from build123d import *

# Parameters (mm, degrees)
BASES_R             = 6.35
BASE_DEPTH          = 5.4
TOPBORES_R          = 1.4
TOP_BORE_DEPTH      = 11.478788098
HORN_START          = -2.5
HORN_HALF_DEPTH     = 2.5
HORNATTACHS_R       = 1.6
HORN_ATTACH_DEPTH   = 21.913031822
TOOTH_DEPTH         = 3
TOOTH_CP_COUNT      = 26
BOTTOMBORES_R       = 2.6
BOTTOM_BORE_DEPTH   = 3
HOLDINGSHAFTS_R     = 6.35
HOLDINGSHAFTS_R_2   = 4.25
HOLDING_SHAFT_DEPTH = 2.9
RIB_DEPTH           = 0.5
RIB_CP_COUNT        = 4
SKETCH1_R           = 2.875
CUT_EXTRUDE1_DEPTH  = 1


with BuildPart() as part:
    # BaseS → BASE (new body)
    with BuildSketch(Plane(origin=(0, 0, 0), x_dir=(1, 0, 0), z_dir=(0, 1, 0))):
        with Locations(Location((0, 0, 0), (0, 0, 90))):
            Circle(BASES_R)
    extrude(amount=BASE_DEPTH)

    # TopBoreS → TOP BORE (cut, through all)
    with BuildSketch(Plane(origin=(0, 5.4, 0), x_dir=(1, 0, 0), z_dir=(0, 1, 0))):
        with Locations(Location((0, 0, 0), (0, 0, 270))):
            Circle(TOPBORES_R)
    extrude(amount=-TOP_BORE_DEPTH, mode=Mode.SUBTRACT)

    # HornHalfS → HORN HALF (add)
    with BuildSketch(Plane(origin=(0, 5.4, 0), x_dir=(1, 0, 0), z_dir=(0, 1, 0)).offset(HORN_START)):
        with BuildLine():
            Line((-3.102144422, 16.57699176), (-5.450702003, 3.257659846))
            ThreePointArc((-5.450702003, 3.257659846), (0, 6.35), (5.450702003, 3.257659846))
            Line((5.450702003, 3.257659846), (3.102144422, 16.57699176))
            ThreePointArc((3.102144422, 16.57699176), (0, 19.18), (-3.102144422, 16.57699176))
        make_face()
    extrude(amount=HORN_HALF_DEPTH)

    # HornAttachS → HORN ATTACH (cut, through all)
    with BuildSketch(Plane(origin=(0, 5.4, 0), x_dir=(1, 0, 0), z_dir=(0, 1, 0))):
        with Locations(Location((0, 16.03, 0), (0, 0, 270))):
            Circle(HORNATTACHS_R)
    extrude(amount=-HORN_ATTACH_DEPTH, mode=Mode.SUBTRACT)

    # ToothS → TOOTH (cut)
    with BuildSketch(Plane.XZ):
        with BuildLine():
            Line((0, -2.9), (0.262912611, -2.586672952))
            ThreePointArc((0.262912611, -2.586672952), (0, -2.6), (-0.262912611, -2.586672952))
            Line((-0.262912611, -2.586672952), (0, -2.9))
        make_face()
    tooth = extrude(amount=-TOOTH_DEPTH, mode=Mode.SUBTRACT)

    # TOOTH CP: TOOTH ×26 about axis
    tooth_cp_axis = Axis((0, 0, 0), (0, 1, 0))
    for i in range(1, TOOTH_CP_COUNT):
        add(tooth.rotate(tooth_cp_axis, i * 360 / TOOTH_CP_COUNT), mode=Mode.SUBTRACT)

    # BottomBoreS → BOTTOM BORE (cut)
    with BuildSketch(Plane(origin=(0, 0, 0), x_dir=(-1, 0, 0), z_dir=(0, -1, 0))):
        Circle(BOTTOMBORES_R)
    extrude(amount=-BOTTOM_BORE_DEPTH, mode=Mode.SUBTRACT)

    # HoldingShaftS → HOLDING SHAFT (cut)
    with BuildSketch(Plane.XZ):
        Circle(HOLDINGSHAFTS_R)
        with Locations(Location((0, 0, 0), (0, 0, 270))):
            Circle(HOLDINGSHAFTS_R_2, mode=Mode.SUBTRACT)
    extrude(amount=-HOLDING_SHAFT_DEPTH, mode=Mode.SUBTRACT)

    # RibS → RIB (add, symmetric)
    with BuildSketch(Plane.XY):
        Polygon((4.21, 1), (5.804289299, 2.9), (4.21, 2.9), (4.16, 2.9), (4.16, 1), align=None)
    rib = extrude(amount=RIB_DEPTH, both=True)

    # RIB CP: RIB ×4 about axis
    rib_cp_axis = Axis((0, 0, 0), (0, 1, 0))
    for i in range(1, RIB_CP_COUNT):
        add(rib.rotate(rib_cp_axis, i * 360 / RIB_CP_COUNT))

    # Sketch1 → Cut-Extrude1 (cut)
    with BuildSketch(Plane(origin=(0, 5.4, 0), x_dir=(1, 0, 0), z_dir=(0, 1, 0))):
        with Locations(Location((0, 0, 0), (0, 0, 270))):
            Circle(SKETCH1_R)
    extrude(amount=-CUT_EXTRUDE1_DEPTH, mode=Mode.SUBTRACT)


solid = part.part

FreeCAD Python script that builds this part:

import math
import FreeCAD as App
import Part
import Sketcher
Q = App.Units.Quantity


def add_polygon(sketch, points):
    """Adds a closed chain of lines whose ends are joined by coincident constraints."""
    first, n = sketch.GeometryCount, len(points)
    for a, b in zip(points, points[1:] + points[:1]):
        sketch.addGeometry(Part.LineSegment(App.Vector(*a, 0), App.Vector(*b, 0)), False)
    for i in range(n):
        sketch.addConstraint(Sketcher.Constraint("Coincident", first + i, 2, first + (i + 1) % n, 1))

doc = App.newDocument("Part")
params = doc.addObject("Spreadsheet::Sheet", "Params")
for row, (alias, value) in enumerate([
    ("sketch1_diameter", "12.7 mm"),
    ("pad1_length", "5.4 mm"),
    ("sketch2_diameter", "2.8 mm"),
    ("sketch3_radius", "6.35 mm"),
    ("sketch3_radius2", "3.15 mm"),
    ("pad2_length", "2.5 mm"),
    ("sketch4_diameter", "3.2 mm"),
    ("sketch5_radius", "2.6 mm"),
    ("pocket3_length", "3 mm"),
    ("sketch6_diameter", "5.2 mm"),
    ("pocket4_length", "3 mm"),
    ("sketch7_diameter", "12.7 mm"),
    ("sketch7_diameter2", "8.5 mm"),
    ("pocket5_length", "2.9 mm"),
    ("sketch8_height", "1.9 mm"),
    ("sketch8_width", "0.05 mm"),
    ("pad3_length", "1 mm"),
    ("sketch9_diameter", "5.75 mm"),
    ("pocket6_length", "1 mm"),
], start=1):
    params.set(f"A{row}", alias)
    params.set(f"B{row}", "=" + value)
    params.setAlias(f"B{row}", alias)

body = doc.addObject("PartDesign::Body", "Body")

sketch1 = body.newObject("Sketcher::SketchObject", "Sketch")
sketch1.AttachmentSupport = (doc.getObject("XZ_Plane"), [""])
sketch1.MapMode = "FlatFace"
sketch1.addGeometry(Part.Circle(App.Vector(0, 0, 0), App.Vector(0, 0, 1), 6), False)
sketch1.addConstraint(Sketcher.Constraint("Coincident", 0, 3, -1, 1))
sketch1.addConstraint(Sketcher.Constraint("Diameter", 0, Q("12.7 mm")))
sketch1.setExpression("Constraints[1]", "Params.sketch1_diameter")
pad1 = body.newObject("PartDesign::Pad", "Pad")
pad1.Profile = sketch1
pad1.setExpression("Length", "Params.pad1_length")
pad1.Reversed = True

sketch2 = body.newObject("Sketcher::SketchObject", "Sketch001")
sketch2.AttachmentSupport = (doc.getObject("XZ_Plane"), [""])
sketch2.MapMode = "FlatFace"
sketch2.AttachmentOffset = App.Placement(App.Vector(0, 0, -5.4), App.Rotation())
sketch2.addGeometry(Part.Circle(App.Vector(0, 0, 0), App.Vector(0, 0, 1), 1.4), False)
sketch2.addConstraint(Sketcher.Constraint("Coincident", 0, 3, -1, 1))
sketch2.addConstraint(Sketcher.Constraint("Diameter", 0, Q("2.8 mm")))
sketch2.setExpression("Constraints[1]", "Params.sketch2_diameter")
pocket1 = body.newObject("PartDesign::Pocket", "Pocket")
pocket1.Profile = sketch2
pocket1.Type = "ThroughAll"
pocket1.Reversed = True

sketch3 = body.newObject("Sketcher::SketchObject", "Sketch002")
sketch3.AttachmentSupport = (doc.getObject("XZ_Plane"), [""])
sketch3.MapMode = "FlatFace"
sketch3.AttachmentOffset = App.Placement(App.Vector(0, 0, -2.9), App.Rotation())
sketch3.addGeometry(Part.LineSegment(App.Vector(-3.1, -16.6, 0), App.Vector(-5.5, -3.3, 0)), False)
sketch3.addGeometry(Part.ArcOfCircle(Part.Circle(App.Vector(0, 0, 0), App.Vector(0, 0, 1), 6.3), math.radians(-149), math.radians(-31)), False)
sketch3.addGeometry(Part.LineSegment(App.Vector(5.5, -3.3, 0), App.Vector(3.1, -16.6, 0)), False)
sketch3.addGeometry(Part.ArcOfCircle(Part.Circle(App.Vector(0, -16, 0), App.Vector(0, 0, 1), 3.1), math.radians(-170), math.radians(-10)), False)
sketch3.addConstraint(Sketcher.Constraint("Coincident", 0, 2, 1, 1))
sketch3.addConstraint(Sketcher.Constraint("Coincident", 1, 2, 2, 1))
sketch3.addConstraint(Sketcher.Constraint("Tangent", 2, 2, 3, 2))
sketch3.addConstraint(Sketcher.Constraint("Tangent", 3, 1, 0, 1))
sketch3.addConstraint(Sketcher.Constraint("Coincident", 1, 3, -1, 1))
sketch3.addConstraint(Sketcher.Constraint("Symmetric", 2, 2, 3, 1, -2))
sketch3.addConstraint(Sketcher.Constraint("Angle", 0, Q("100 deg")))
sketch3.addConstraint(Sketcher.Constraint("Radius", 1, Q("6.35 mm")))
sketch3.addConstraint(Sketcher.Constraint("Radius", 3, Q("3.15 mm")))
sketch3.addConstraint(Sketcher.Constraint("DistanceY", 3, 3, -1, 1, Q("16.03 mm")))
sketch3.setExpression("Constraints[7]", "Params.sketch3_radius")
sketch3.setExpression("Constraints[8]", "Params.sketch3_radius2")
pad2 = body.newObject("PartDesign::Pad", "Pad001")
pad2.Profile = sketch3
pad2.setExpression("Length", "Params.pad2_length")
pad2.Reversed = True

sketch4 = body.newObject("Sketcher::SketchObject", "Sketch003")
sketch4.AttachmentSupport = (doc.getObject("XZ_Plane"), [""])
sketch4.MapMode = "FlatFace"
sketch4.AttachmentOffset = App.Placement(App.Vector(0, 0, -5.4), App.Rotation())
sketch4.addGeometry(Part.Circle(App.Vector(0, -16, 0), App.Vector(0, 0, 1), 1.6), False)
sketch4.addConstraint(Sketcher.Constraint("PointOnObject", 0, 3, -2))
sketch4.addConstraint(Sketcher.Constraint("Diameter", 0, Q("3.2 mm")))
sketch4.addConstraint(Sketcher.Constraint("DistanceY", 0, 3, -1, 1, Q("16.03 mm")))
sketch4.setExpression("Constraints[1]", "Params.sketch4_diameter")
pocket2 = body.newObject("PartDesign::Pocket", "Pocket001")
pocket2.Profile = sketch4
pocket2.Type = "ThroughAll"
pocket2.Reversed = True

sketch5 = body.newObject("Sketcher::SketchObject", "Sketch004")
sketch5.AttachmentSupport = (doc.getObject("XZ_Plane"), [""])
sketch5.MapMode = "FlatFace"
sketch5.addGeometry(Part.LineSegment(App.Vector(0, -2.9, 0), App.Vector(0.26, -2.59, 0)), False)
sketch5.addGeometry(Part.ArcOfCircle(Part.Circle(App.Vector(0, 0, 0), App.Vector(0, 0, 1), 2.6), math.radians(-95.8), math.radians(-84.2)), False)
sketch5.addGeometry(Part.LineSegment(App.Vector(-0.26, -2.59, 0), App.Vector(0, -2.9, 0)), False)
sketch5.addConstraint(Sketcher.Constraint("Coincident", 0, 2, 1, 2))
sketch5.addConstraint(Sketcher.Constraint("Coincident", 1, 1, 2, 1))
sketch5.addConstraint(Sketcher.Constraint("Coincident", 2, 2, 0, 1))
sketch5.addConstraint(Sketcher.Constraint("Coincident", 1, 3, -1, 1))
sketch5.addConstraint(Sketcher.Constraint("PointOnObject", 2, 2, -2))
sketch5.addConstraint(Sketcher.Constraint("Horizontal", 0, 2, 1, 1))
sketch5.addConstraint(Sketcher.Constraint("Radius", 1, Q("2.6 mm")))
sketch5.addConstraint(Sketcher.Constraint("Angle", 0, Q("50 deg")))
sketch5.addConstraint(Sketcher.Constraint("DistanceY", 2, 2, -1, 1, Q("2.9 mm")))
sketch5.setExpression("Constraints[6]", "Params.sketch5_radius")
pocket3 = body.newObject("PartDesign::Pocket", "Pocket002")
pocket3.Profile = sketch5
pocket3.setExpression("Length", "Params.pocket3_length")
doc.recompute()

polarpattern = body.newObject("PartDesign::PolarPattern", "PolarPattern")
polarpattern.Originals = [pocket3]
polarpattern.Axis = (doc.getObject("Y_Axis"), [""])
polarpattern.Angle = 360
polarpattern.Occurrences = 26
body.Tip = polarpattern

sketch6 = body.newObject("Sketcher::SketchObject", "Sketch005")
sketch6.AttachmentSupport = (doc.getObject("XZ_Plane"), [""])
sketch6.MapMode = "FlatFace"
sketch6.addGeometry(Part.Circle(App.Vector(0, 0, 0), App.Vector(0, 0, 1), 2.6), False)
sketch6.addConstraint(Sketcher.Constraint("Coincident", 0, 3, -1, 1))
sketch6.addConstraint(Sketcher.Constraint("Diameter", 0, Q("5.2 mm")))
sketch6.setExpression("Constraints[1]", "Params.sketch6_diameter")
pocket4 = body.newObject("PartDesign::Pocket", "Pocket003")
pocket4.Profile = sketch6
pocket4.setExpression("Length", "Params.pocket4_length")

sketch7 = body.newObject("Sketcher::SketchObject", "Sketch006")
sketch7.AttachmentSupport = (doc.getObject("XZ_Plane"), [""])
sketch7.MapMode = "FlatFace"
sketch7.addGeometry(Part.Circle(App.Vector(0, 0, 0), App.Vector(0, 0, 1), 6.3), False)
sketch7.addGeometry(Part.Circle(App.Vector(0, 0, 0), App.Vector(0, 0, 1), 4.2), False)
sketch7.addConstraint(Sketcher.Constraint("Coincident", 0, 3, -1, 1))
sketch7.addConstraint(Sketcher.Constraint("Coincident", 1, 3, -1, 1))
sketch7.addConstraint(Sketcher.Constraint("Diameter", 0, Q("12.7 mm")))
sketch7.addConstraint(Sketcher.Constraint("Diameter", 1, Q("8.5 mm")))
sketch7.setExpression("Constraints[2]", "Params.sketch7_diameter")
sketch7.setExpression("Constraints[3]", "Params.sketch7_diameter2")
pocket5 = body.newObject("PartDesign::Pocket", "Pocket004")
pocket5.Profile = sketch7
pocket5.setExpression("Length", "Params.pocket5_length")

sketch8 = body.newObject("Sketcher::SketchObject", "Sketch007")
sketch8.AttachmentSupport = (doc.getObject("XY_Plane"), [""])
sketch8.MapMode = "FlatFace"
add_polygon(sketch8, [(4.21, 1), (5.804, 2.9), (4.16, 2.9), (4.16, 1)])
sketch8.addConstraint(Sketcher.Constraint("Horizontal", 1))
sketch8.addConstraint(Sketcher.Constraint("Vertical", 2))
sketch8.addConstraint(Sketcher.Constraint("Horizontal", 3))
sketch8.addConstraint(Sketcher.Constraint("Angle", 0, Q("50 deg")))
sketch8.addConstraint(Sketcher.Constraint("DistanceY", 2, 2, 2, 1, Q("1.9 mm")))
sketch8.addConstraint(Sketcher.Constraint("DistanceY", -1, 1, 2, 2, Q("1 mm")))
sketch8.addConstraint(Sketcher.Constraint("DistanceX", 3, 1, 3, 2, Q("0.05 mm")))
sketch8.addConstraint(Sketcher.Constraint("DistanceX", -1, 1, 1, 2, Q("4.16 mm")))
sketch8.setExpression("Constraints[8]", "Params.sketch8_height")
sketch8.setExpression("Constraints[10]", "Params.sketch8_width")
pad3 = body.newObject("PartDesign::Pad", "Pad002")
pad3.Profile = sketch8
pad3.setExpression("Length", "Params.pad3_length")
pad3.Midplane = True
doc.recompute()

polarpattern2 = body.newObject("PartDesign::PolarPattern", "PolarPattern001")
polarpattern2.Originals = [pad3]
polarpattern2.Axis = (doc.getObject("Y_Axis"), [""])
polarpattern2.Angle = 360
polarpattern2.Occurrences = 4
body.Tip = polarpattern2

sketch9 = body.newObject("Sketcher::SketchObject", "Sketch008")
sketch9.AttachmentSupport = (doc.getObject("XZ_Plane"), [""])
sketch9.MapMode = "FlatFace"
sketch9.AttachmentOffset = App.Placement(App.Vector(0, 0, -5.4), App.Rotation())
sketch9.addGeometry(Part.Circle(App.Vector(0, 0, 0), App.Vector(0, 0, 1), 2.9), False)
sketch9.addConstraint(Sketcher.Constraint("Coincident", 0, 3, -1, 1))
sketch9.addConstraint(Sketcher.Constraint("Diameter", 0, Q("5.75 mm")))
sketch9.setExpression("Constraints[1]", "Params.sketch9_diameter")
pocket6 = body.newObject("PartDesign::Pocket", "Pocket005")
pocket6.Profile = sketch9
pocket6.setExpression("Length", "Params.pocket6_length")
pocket6.Reversed = True

doc.recompute()
